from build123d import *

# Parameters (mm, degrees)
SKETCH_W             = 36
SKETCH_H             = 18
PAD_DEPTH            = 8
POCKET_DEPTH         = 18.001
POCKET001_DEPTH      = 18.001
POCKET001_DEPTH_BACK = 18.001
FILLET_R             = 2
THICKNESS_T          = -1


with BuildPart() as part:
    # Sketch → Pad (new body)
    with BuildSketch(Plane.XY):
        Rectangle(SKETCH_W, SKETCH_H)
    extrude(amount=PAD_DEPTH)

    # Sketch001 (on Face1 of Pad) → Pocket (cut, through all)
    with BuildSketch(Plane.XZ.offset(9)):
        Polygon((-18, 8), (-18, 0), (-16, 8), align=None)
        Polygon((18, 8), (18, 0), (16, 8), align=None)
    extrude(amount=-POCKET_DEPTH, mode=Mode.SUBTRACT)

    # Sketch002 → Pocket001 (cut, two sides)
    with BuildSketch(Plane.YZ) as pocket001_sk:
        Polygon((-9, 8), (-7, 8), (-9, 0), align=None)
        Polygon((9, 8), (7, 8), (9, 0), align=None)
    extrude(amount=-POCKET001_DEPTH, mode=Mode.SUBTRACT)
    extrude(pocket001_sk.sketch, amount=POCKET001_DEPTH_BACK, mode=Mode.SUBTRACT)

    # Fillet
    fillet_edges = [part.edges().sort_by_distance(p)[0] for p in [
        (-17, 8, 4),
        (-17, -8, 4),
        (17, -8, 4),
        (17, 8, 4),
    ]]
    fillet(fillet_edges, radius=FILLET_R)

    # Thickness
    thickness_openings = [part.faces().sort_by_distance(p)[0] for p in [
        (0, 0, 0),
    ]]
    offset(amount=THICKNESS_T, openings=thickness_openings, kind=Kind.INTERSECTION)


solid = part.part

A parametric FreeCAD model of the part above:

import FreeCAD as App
import Part
import Sketcher


def edges_at(feature, points):
    """Names of the edges that pass closest to the given points."""
    edges = feature.Shape.Edges
    near = lambda p: min(range(len(edges)), key=lambda i: edges[i].distToShape(Part.Vertex(*p))[0])
    return sorted({f"Edge{near(p) + 1}" for p in points})


def faces_at(feature, points):
    """Names of the faces that lie closest to the given points."""
    faces = feature.Shape.Faces
    near = lambda p: min(range(len(faces)), key=lambda i: faces[i].distToShape(Part.Vertex(*p))[0])
    return sorted({f"Face{near(p) + 1}" for p in points})


def add_polygon(sketch, points):
    """Adds a closed chain of lines whose ends are joined by coincident constraints."""
    first, n = sketch.GeometryCount, len(points)
    for a, b in zip(points, points[1:] + points[:1]):
        sketch.addGeometry(Part.LineSegment(App.Vector(*a, 0), App.Vector(*b, 0)), False)
    for i in range(n):
        sketch.addConstraint(Sketcher.Constraint("Coincident", first + i, 2, first + (i + 1) % n, 1))

doc = App.newDocument("Part")
body = doc.addObject("PartDesign::Body", "Body")

# Sketch on XY plane
sketch1 = body.newObject("Sketcher::SketchObject", "Sketch")
sketch1.AttachmentSupport = (doc.getObject("XY_Plane"), [""])
sketch1.MapMode = "FlatFace"
add_polygon(sketch1, [(-18, 9), (-18, -9), (18, -9), (18, 9)])  # lines 0-3
sketch1.addConstraint(Sketcher.Constraint("Vertical", 0))
sketch1.addConstraint(Sketcher.Constraint("Horizontal", 1))
sketch1.addConstraint(Sketcher.Constraint("Vertical", 2))
sketch1.addConstraint(Sketcher.Constraint("Horizontal", 3))
sketch1.addConstraint(Sketcher.Constraint("Symmetric", 0, 2, 2, 2, -1, 1))
sketch1.addConstraint(Sketcher.Constraint("DistanceX", 1, 1, 1, 2, 36.0))
sketch1.addConstraint(Sketcher.Constraint("DistanceY", 0, 2, 0, 1, 18.0))
pad1 = body.newObject("PartDesign::Pad", "Pad")
pad1.Profile = sketch1
pad1.Length = 8

# Sketch on XZ plane
sketch2 = body.newObject("Sketcher::SketchObject", "Sketch001")
sketch2.AttachmentSupport = (doc.getObject("XZ_Plane"), [""])
sketch2.MapMode = "FlatFace"
sketch2.AttachmentOffset = App.Placement(App.Vector(0, 0, 9), App.Rotation())
add_polygon(sketch2, [(-18, 8), (-18, 0), (-16, 8)])  # lines 0-2
add_polygon(sketch2, [(18, 0), (18, 8), (16, 8)])  # lines 3-5
sketch2.addConstraint(Sketcher.Constraint("Vertical", 0))
sketch2.addConstraint(Sketcher.Constraint("Horizontal", 2))
sketch2.addConstraint(Sketcher.Constraint("Vertical", 3))
sketch2.addConstraint(Sketcher.Constraint("Horizontal", 4))
sketch2.addConstraint(Sketcher.Constraint("Symmetric", 0, 2, 5, 2, -1, 1))
sketch2.addConstraint(Sketcher.Constraint("Symmetric", 1, 2, 4, 2, -2))
sketch2.addConstraint(Sketcher.Constraint("PointOnObject", 0, 2, -1))
sketch2.addConstraint(Sketcher.Constraint("DistanceX", 2, 2, 2, 1, 2.0))
sketch2.addConstraint(Sketcher.Constraint("DistanceY", 0, 2, 0, 1, 8.0))
sketch2.addConstraint(Sketcher.Constraint("DistanceX", 0, 2, -1, 1, 18.0))
pocket1 = body.newObject("PartDesign::Pocket", "Pocket")
pocket1.Profile = sketch2
pocket1.Type = "ThroughAll"

# Sketch on YZ plane
sketch3 = body.newObject("Sketcher::SketchObject", "Sketch002")
sketch3.AttachmentSupport = (doc.getObject("YZ_Plane"), [""])
sketch3.MapMode = "FlatFace"
add_polygon(sketch3, [(-7, 8), (-9, 8), (-9, 0)])  # lines 0-2
add_polygon(sketch3, [(9, 8), (7, 8), (9, 0)])  # lines 3-5
sketch3.addConstraint(Sketcher.Constraint("Horizontal", 0))
sketch3.addConstraint(Sketcher.Constraint("Vertical", 1))
sketch3.addConstraint(Sketcher.Constraint("Horizontal", 3))
sketch3.addConstraint(Sketcher.Constraint("Vertical", 5))
sketch3.addConstraint(Sketcher.Constraint("Symmetric", 1, 2, 4, 2, -1, 1))
sketch3.addConstraint(Sketcher.Constraint("Symmetric", 2, 2, 3, 2, -2))
sketch3.addConstraint(Sketcher.Constraint("PointOnObject", 1, 2, -1))
sketch3.addConstraint(Sketcher.Constraint("DistanceX", 0, 2, 0, 1, 2.0))
sketch3.addConstraint(Sketcher.Constraint("DistanceY", 1, 2, 1, 1, 8.0))
sketch3.addConstraint(Sketcher.Constraint("DistanceX", 0, 2, -1, 1, 9.0))
pocket2 = body.newObject("PartDesign::Pocket", "Pocket001")
pocket2.Profile = sketch3
pocket2.Type = "ThroughAll"
pocket2.Midplane = True
doc.recompute()

fillet = body.newObject("PartDesign::Fillet", "Fillet")
fillet.Base = (pocket2, edges_at(pocket2, [
    (-17, 8, 4),
    (-17, -8, 4),
    (17, -8, 4),
    (17, 8, 4),
]))
fillet.Radius = 2
doc.recompute()

thickness = body.newObject("PartDesign::Thickness", "Thickness")
thickness.Base = (fillet, faces_at(fillet, [(0, 0, 0)]))
thickness.Value = 1
thickness.Reversed = True
thickness.Join = "Intersection"

doc.recompute()
